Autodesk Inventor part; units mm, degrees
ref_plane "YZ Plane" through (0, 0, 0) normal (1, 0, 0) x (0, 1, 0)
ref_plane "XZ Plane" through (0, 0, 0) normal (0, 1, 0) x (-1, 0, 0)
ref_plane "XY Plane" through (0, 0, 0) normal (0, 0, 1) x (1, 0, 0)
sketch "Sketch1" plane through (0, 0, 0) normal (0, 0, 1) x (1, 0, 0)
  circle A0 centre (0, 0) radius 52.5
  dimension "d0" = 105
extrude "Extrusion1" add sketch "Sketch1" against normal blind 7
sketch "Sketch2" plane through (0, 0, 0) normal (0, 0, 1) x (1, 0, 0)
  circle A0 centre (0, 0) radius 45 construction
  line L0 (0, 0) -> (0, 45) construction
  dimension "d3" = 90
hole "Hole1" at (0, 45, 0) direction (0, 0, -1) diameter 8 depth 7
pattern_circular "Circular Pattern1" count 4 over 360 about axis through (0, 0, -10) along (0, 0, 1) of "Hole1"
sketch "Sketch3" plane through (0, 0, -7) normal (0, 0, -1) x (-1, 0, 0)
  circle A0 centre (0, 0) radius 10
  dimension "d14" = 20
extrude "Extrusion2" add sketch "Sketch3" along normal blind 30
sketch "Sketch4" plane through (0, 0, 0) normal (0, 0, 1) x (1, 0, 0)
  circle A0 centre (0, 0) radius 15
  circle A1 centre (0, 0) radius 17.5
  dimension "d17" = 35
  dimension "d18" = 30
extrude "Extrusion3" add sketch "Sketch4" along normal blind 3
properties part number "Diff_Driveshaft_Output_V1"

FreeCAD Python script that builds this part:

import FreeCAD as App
import Part
import Sketcher

doc = App.newDocument("Part")
body = doc.addObject("PartDesign::Body", "Body")

sketch1 = body.newObject("Sketcher::SketchObject", "Sketch")
sketch1.AttachmentSupport = (doc.getObject("XY_Plane"), [""])
sketch1.MapMode = "FlatFace"
sketch1.addGeometry(Part.Circle(App.Vector(0, 0, 0), App.Vector(0, 0, 1), 52.5), False)
sketch1.addConstraint(Sketcher.Constraint("Coincident", 0, 3, -1, 1))
sketch1.addConstraint(Sketcher.Constraint("Diameter", 0, 105.0))
pad1 = body.newObject("PartDesign::Pad", "Pad")
pad1.Profile = sketch1
pad1.Length = 7
pad1.Reversed = True

sketch2 = body.newObject("Sketcher::SketchObject", "Sketch001")
sketch2.AttachmentSupport = (doc.getObject("XY_Plane"), [""])
sketch2.MapMode = "FlatFace"
sketch2.addGeometry(Part.Circle(App.Vector(0, 45, 0), App.Vector(0, 0, 1), 4), False)
sketch2.addConstraint(Sketcher.Constraint("PointOnObject", 0, 3, -2))
sketch2.addConstraint(Sketcher.Constraint("Diameter", 0, 8.0))
sketch2.addConstraint(Sketcher.Constraint("DistanceY", -1, 1, 0, 3, 45.0))
doc.recompute()
hole = body.newObject("PartDesign::Hole", "Hole")
hole.Profile = sketch2
hole.ThreadType = "None"
hole.Diameter = 8
hole.DepthType = "Dimension"
hole.Depth = 7
hole.DrillPoint = "Flat"
doc.recompute()

polarpattern = body.newObject("PartDesign::PolarPattern", "PolarPattern")
polarpattern.Originals = [hole]
polarpattern.Axis = (doc.getObject("Z_Axis"), [""])
polarpattern.Angle = 360
polarpattern.Occurrences = 4
body.Tip = polarpattern

sketch3 = body.newObject("Sketcher::SketchObject", "Sketch002")
sketch3.AttachmentSupport = (doc.getObject("XY_Plane"), [""])
sketch3.MapMode = "FlatFace"
sketch3.AttachmentOffset = App.Placement(App.Vector(0, 0, -7), App.Rotation())
sketch3.addGeometry(Part.Circle(App.Vector(0, 0, 0), App.Vector(0, 0, 1), 10), False)
sketch3.addConstraint(Sketcher.Constraint("Coincident", 0, 3, -1, 1))
sketch3.addConstraint(Sketcher.Constraint("Diameter", 0, 20.0))
pad2 = body.newObject("PartDesign::Pad", "Pad001")
pad2.Profile = sketch3
pad2.Length = 30
pad2.Reversed = True

sketch4 = body.newObject("Sketcher::SketchObject", "Sketch003")
sketch4.AttachmentSupport = (doc.getObject("XY_Plane"), [""])
sketch4.MapMode = "FlatFace"
sketch4.addGeometry(Part.Circle(App.Vector(0, 0, 0), App.Vector(0, 0, 1), 17.5), False)
sketch4.addGeometry(Part.Circle(App.Vector(0, 0, 0), App.Vector(0, 0, 1), 15), False)
sketch4.addConstraint(Sketcher.Constraint("Coincident", 0, 3, -1, 1))
sketch4.addConstraint(Sketcher.Constraint("Coincident", 1, 3, -1, 1))
sketch4.addConstraint(Sketcher.Constraint("Diameter", 0, 35.0))
sketch4.addConstraint(Sketcher.Constraint("Diameter", 1, 30.0))
pad3 = body.newObject("PartDesign::Pad", "Pad002")
pad3.Profile = sketch4
pad3.Length = 3

doc.recompute()
